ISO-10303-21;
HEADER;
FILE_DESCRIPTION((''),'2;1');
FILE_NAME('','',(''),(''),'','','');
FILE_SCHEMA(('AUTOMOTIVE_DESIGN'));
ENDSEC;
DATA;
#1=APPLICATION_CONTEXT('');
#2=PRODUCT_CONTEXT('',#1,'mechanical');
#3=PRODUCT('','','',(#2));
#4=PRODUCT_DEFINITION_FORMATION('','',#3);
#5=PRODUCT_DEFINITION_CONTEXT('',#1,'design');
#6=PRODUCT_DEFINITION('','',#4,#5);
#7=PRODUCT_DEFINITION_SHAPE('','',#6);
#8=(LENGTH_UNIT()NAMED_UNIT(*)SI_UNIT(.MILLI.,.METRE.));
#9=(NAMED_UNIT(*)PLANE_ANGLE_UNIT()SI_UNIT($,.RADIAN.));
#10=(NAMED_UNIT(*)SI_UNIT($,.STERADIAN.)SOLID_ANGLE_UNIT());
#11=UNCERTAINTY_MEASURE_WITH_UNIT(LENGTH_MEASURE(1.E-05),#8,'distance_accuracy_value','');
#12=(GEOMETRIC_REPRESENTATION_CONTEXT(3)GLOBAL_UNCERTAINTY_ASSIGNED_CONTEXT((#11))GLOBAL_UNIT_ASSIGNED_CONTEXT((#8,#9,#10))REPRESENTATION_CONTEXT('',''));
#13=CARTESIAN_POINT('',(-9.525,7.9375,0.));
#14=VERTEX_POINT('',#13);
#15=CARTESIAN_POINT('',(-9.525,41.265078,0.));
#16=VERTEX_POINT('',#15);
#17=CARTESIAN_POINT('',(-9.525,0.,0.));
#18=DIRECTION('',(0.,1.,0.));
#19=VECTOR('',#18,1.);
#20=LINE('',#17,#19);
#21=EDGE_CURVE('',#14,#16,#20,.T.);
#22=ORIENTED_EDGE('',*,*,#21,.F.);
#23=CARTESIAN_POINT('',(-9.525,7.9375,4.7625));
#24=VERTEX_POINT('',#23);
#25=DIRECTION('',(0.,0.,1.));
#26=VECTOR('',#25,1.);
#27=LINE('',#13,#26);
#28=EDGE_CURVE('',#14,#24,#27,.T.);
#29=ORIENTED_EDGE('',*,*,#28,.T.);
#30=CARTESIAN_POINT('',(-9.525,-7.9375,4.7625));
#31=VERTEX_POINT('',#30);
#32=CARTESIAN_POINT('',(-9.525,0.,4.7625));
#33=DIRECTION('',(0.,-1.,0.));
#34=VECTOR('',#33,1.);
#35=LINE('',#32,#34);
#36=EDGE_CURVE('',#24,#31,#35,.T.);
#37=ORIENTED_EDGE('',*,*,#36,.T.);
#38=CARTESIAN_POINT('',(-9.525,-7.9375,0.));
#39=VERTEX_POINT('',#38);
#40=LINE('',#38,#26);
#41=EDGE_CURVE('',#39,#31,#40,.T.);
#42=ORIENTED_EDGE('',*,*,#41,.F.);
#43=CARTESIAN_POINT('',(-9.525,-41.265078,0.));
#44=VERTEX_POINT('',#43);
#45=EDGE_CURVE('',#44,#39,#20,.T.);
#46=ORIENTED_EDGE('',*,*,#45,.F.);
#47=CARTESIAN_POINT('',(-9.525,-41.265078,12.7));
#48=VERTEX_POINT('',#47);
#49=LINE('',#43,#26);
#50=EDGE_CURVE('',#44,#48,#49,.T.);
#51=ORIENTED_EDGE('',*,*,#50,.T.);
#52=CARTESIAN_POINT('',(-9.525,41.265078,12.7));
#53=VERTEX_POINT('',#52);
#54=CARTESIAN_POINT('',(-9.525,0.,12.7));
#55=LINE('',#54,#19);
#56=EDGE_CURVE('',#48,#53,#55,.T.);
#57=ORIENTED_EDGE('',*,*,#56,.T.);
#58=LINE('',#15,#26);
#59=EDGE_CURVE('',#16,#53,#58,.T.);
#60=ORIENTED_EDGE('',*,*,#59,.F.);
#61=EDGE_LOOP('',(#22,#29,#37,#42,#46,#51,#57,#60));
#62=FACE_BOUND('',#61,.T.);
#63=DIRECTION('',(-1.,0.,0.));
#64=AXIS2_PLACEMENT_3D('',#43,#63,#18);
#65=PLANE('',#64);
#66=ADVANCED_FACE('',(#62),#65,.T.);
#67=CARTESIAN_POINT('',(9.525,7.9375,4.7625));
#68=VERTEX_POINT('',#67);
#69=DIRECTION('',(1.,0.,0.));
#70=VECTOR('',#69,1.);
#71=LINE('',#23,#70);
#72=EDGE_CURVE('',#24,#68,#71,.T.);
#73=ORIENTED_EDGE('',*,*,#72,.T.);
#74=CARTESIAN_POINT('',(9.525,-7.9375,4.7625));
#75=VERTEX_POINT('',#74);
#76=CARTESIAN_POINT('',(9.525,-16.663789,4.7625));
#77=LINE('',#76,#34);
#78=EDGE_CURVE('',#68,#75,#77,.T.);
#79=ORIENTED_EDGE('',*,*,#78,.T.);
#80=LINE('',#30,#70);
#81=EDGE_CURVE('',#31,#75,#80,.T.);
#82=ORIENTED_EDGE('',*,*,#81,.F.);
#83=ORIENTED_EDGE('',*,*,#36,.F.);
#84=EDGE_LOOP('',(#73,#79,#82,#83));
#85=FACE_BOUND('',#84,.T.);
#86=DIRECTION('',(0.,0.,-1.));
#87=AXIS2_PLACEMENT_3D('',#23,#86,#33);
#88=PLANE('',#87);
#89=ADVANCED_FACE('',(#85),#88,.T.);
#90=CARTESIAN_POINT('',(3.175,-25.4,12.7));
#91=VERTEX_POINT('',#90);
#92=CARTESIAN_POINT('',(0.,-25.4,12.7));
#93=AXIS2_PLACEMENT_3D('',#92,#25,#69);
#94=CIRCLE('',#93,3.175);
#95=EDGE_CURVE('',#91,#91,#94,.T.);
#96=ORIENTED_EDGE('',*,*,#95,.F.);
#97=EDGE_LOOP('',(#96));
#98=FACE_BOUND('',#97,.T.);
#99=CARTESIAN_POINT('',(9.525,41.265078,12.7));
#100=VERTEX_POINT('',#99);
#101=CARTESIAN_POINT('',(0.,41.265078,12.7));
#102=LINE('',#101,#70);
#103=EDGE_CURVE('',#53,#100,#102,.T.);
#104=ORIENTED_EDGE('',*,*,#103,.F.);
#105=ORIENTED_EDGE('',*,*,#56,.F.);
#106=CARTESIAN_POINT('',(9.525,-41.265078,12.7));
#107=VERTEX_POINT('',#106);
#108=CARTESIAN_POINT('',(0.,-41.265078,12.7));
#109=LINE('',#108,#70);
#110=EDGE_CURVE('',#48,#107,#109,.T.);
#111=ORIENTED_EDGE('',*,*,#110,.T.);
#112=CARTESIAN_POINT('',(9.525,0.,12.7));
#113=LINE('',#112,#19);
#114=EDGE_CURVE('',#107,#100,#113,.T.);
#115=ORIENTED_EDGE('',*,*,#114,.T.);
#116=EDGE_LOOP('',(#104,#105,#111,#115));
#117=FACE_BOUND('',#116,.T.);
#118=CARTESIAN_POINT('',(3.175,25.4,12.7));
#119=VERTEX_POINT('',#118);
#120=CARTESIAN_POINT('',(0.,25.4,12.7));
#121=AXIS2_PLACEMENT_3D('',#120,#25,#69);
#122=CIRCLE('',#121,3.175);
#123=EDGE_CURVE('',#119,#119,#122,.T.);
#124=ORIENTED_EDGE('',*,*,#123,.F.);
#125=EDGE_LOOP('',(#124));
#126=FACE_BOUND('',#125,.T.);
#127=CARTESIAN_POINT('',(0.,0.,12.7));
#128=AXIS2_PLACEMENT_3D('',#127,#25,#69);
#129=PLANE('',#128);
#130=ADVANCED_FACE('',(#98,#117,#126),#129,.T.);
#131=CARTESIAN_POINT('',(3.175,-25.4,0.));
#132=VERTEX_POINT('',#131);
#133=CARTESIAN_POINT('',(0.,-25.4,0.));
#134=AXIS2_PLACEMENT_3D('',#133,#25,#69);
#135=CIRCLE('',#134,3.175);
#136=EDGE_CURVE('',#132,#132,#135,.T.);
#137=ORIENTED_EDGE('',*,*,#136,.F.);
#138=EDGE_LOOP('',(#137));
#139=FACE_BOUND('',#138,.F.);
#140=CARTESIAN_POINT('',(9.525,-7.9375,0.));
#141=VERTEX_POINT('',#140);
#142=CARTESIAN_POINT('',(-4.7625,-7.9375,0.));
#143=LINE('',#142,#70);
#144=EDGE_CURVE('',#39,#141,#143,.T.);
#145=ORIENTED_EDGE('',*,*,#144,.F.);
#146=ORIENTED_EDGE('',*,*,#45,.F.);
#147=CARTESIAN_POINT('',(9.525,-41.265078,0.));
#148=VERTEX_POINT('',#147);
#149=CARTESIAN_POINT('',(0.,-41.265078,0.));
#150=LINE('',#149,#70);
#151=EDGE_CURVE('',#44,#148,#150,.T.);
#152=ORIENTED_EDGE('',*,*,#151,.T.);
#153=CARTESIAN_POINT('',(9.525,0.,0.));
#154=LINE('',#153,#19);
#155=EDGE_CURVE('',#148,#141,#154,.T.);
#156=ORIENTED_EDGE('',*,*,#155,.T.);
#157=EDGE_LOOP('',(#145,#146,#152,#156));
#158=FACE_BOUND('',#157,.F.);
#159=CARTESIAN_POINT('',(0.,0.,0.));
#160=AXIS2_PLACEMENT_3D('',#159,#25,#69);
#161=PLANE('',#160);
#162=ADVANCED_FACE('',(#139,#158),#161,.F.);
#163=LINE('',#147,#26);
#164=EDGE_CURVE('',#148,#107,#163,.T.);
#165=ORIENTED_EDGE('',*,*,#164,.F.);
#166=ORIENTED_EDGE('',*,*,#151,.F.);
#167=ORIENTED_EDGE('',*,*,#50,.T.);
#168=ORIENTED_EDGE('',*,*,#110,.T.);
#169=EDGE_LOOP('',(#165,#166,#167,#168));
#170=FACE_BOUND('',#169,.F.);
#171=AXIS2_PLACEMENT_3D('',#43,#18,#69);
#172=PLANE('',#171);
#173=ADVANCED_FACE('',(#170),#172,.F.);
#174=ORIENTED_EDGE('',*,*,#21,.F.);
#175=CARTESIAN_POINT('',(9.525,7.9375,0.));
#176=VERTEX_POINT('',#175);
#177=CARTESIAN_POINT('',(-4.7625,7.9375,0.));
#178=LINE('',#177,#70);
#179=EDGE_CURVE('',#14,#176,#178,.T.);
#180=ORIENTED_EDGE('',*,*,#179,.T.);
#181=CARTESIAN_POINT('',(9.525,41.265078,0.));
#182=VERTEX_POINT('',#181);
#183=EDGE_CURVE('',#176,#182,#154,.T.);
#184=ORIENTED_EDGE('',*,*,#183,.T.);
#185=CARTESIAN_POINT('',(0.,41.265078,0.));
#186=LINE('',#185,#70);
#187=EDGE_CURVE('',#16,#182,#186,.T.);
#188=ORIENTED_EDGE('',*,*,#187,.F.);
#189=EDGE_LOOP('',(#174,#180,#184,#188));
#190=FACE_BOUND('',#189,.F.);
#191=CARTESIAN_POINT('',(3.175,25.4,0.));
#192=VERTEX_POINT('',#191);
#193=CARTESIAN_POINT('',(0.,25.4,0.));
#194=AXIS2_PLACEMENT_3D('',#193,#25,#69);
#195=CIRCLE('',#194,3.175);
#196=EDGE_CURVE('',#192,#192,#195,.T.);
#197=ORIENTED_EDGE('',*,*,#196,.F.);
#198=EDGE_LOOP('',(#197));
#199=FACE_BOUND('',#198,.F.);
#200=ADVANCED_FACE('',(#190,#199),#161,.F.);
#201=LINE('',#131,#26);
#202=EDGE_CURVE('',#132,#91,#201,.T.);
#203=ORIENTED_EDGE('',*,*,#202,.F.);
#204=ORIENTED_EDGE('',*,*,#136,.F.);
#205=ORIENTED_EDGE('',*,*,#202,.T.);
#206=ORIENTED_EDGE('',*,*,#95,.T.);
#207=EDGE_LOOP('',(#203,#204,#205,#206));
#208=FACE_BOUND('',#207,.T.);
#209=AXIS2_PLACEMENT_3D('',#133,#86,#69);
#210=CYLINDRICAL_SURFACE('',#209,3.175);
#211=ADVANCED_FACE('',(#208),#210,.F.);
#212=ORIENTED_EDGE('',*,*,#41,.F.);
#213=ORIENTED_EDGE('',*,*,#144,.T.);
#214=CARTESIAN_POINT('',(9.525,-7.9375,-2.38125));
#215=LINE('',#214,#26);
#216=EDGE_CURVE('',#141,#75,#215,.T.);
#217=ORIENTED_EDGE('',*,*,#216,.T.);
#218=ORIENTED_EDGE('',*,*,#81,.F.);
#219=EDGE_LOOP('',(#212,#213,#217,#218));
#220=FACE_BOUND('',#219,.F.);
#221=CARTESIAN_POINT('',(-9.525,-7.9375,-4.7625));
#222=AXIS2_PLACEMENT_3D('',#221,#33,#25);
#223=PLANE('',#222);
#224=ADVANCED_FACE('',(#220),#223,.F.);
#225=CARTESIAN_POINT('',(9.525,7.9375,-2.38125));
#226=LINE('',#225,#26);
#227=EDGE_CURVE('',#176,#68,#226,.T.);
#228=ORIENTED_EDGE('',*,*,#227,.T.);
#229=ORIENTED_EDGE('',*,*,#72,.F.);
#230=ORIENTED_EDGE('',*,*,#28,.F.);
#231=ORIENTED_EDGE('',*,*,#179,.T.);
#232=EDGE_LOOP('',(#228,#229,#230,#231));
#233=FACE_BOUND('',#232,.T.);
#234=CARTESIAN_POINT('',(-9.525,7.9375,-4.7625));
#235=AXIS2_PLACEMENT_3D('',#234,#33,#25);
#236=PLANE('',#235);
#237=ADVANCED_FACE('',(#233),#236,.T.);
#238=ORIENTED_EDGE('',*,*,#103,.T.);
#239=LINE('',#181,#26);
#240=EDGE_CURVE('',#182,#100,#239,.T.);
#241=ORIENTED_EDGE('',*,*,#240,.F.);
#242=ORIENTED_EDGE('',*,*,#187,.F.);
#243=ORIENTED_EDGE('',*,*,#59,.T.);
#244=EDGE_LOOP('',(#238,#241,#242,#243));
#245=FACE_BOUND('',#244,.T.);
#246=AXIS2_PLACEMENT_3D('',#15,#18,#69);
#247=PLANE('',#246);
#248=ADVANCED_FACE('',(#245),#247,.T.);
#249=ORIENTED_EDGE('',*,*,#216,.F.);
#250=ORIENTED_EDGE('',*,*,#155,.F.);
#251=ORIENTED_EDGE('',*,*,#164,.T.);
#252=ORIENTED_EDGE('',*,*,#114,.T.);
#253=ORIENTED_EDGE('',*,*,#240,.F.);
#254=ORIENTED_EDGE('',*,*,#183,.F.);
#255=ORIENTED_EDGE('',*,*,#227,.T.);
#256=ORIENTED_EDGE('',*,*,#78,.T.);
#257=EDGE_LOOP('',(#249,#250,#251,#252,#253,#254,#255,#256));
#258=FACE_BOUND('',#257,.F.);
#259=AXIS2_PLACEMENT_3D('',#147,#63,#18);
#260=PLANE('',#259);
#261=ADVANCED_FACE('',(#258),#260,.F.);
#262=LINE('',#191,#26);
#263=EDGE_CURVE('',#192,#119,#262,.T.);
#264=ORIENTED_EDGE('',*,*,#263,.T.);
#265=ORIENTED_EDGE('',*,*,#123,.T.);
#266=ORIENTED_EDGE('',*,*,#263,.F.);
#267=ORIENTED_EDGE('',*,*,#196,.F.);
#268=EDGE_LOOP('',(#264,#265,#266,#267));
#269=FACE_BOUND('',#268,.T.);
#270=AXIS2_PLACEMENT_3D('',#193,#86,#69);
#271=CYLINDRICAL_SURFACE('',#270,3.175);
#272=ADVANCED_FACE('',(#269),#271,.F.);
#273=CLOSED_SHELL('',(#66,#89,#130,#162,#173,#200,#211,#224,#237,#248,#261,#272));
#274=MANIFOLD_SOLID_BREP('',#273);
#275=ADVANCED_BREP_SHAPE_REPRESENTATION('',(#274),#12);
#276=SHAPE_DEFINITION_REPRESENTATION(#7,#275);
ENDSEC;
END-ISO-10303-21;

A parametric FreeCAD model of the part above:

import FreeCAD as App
import Part
import Sketcher
from FreeCAD import Vector
Q = App.Units.Quantity


def add_polygon(sketch, points):
    """Adds a closed chain of lines whose ends are joined by coincident constraints."""
    first, n = sketch.GeometryCount, len(points)
    for a, b in zip(points, points[1:] + points[:1]):
        sketch.addGeometry(Part.LineSegment(App.Vector(*a, 0), App.Vector(*b, 0)), False)
    for i in range(n):
        sketch.addConstraint(Sketcher.Constraint("Coincident", first + i, 2, first + (i + 1) % n, 1))

doc = App.newDocument("Part")
body = doc.addObject("PartDesign::Body", "Body")

sketch1 = body.newObject("Sketcher::SketchObject", "Sketch")
sketch1.AttachmentSupport = (doc.getObject("XY_Plane"), [""])
sketch1.MapMode = "FlatFace"
add_polygon(sketch1, [(-9.525, 41.265078), (-9.525, -41.265078), (9.525, -41.265078), (9.525, 41.265078)])
sketch1.addGeometry(Part.Circle(Vector(0, -25.4, 0), Vector(0, 0, 1), 3.175), False)
sketch1.addGeometry(Part.Circle(Vector(0, 25.4, 0), Vector(0, 0, 1), 3.175), False)
sketch1.addConstraint(Sketcher.Constraint("Vertical", 0))
sketch1.addConstraint(Sketcher.Constraint("Horizontal", 1))
sketch1.addConstraint(Sketcher.Constraint("Vertical", 2))
sketch1.addConstraint(Sketcher.Constraint("Horizontal", 3))
sketch1.addConstraint(Sketcher.Constraint("Equal", 4, 5))
sketch1.addConstraint(Sketcher.Constraint("Symmetric", 4, 3, 5, 3, -1, 1))
sketch1.addConstraint(Sketcher.Constraint("Symmetric", 0, 2, 2, 2, -1, 1))
sketch1.addConstraint(Sketcher.Constraint("PointOnObject", 4, 3, -2))
sketch1.addConstraint(Sketcher.Constraint("Diameter", 4, Q("0.25 in")))
sketch1.addConstraint(Sketcher.Constraint("DistanceY", 4, 3, -1, 1, Q("1 in")))
sketch1.addConstraint(Sketcher.Constraint("DistanceX", 1, 1, 1, 2, Q("0.75 in")))
sketch1.addConstraint(Sketcher.Constraint("DistanceY", 0, 2, 0, 1, Q("82.530156 mm")))
pad1 = body.newObject("PartDesign::Pad", "Pad")
pad1.Profile = sketch1
pad1.Length = Q("0.5 in")

sketch2 = body.newObject("Sketcher::SketchObject", "Sketch001")
sketch2.AttachmentSupport = (doc.getObject("YZ_Plane"), [""])
sketch2.MapMode = "FlatFace"
sketch2.AttachmentOffset = App.Placement(Vector(0, 0, -0.375 * 25.4), App.Rotation())
add_polygon(sketch2, [(7.9375, 4.7625), (7.9375, -4.7625), (-7.9375, -4.7625), (-7.9375, 4.7625)])
sketch2.addConstraint(Sketcher.Constraint("Vertical", 0))
sketch2.addConstraint(Sketcher.Constraint("Horizontal", 1))
sketch2.addConstraint(Sketcher.Constraint("Vertical", 2))
sketch2.addConstraint(Sketcher.Constraint("Horizontal", 3))
sketch2.addConstraint(Sketcher.Constraint("Symmetric", 0, 2, 2, 2, -1, 1))
sketch2.addConstraint(Sketcher.Constraint("DistanceX", 1, 2, 1, 1, Q("0.625 in")))
sketch2.addConstraint(Sketcher.Constraint("DistanceY", 0, 2, 0, 1, Q("0.375 in")))
pocket1 = body.newObject("PartDesign::Pocket", "Pocket")
pocket1.Profile = sketch2
pocket1.Type = "ThroughAll"
pocket1.Reversed = True

doc.recompute()
